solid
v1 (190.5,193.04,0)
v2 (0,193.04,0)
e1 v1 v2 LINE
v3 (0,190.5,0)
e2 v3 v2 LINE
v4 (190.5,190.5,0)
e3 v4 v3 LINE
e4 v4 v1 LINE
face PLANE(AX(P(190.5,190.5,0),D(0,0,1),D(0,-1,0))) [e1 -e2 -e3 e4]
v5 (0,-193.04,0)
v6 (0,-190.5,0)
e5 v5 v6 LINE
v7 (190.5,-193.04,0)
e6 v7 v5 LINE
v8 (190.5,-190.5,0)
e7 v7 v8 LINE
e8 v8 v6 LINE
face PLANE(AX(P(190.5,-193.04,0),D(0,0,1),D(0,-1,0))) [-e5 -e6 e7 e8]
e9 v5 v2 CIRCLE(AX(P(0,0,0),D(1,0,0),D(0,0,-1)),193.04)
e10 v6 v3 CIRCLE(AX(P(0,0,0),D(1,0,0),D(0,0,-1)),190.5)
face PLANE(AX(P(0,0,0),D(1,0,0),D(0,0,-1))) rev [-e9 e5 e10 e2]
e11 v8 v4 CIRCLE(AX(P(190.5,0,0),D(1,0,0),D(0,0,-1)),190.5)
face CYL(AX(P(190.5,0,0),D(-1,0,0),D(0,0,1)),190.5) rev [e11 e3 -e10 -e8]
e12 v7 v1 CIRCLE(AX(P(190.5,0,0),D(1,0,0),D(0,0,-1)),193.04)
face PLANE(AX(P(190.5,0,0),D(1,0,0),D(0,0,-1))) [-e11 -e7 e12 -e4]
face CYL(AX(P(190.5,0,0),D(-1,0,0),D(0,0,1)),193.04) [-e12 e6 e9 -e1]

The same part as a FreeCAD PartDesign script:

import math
import FreeCAD as App
import Part
import Sketcher

V = App.Vector
Q = App.Units.Quantity

doc = App.newDocument("Part")
body = doc.addObject("PartDesign::Body", "Body")

sketch1 = body.newObject("Sketcher::SketchObject", "Sketch")
sketch1.AttachmentSupport = (doc.getObject("YZ_Plane"), [""])
sketch1.MapMode = "FlatFace"
sketch1.addGeometry(Part.ArcOfCircle(Part.Circle(V(0, 0, 0), V(0, 0, 1), 190.5), math.radians(180), math.radians(360)), False)
sketch1.addGeometry(Part.LineSegment(V(-190.5, 0, 0), V(-193, 0, 0)), False)
sketch1.addGeometry(Part.ArcOfCircle(Part.Circle(V(0, 0, 0), V(0, 0, 1), 193), math.radians(180), math.radians(360)), False)
sketch1.addGeometry(Part.LineSegment(V(193, 0, 0), V(190.5, 0, 0)), False)
sketch1.addConstraint(Sketcher.Constraint("Coincident", 0, 1, 1, 1))
sketch1.addConstraint(Sketcher.Constraint("Coincident", 1, 2, 2, 1))
sketch1.addConstraint(Sketcher.Constraint("Coincident", 2, 2, 3, 1))
sketch1.addConstraint(Sketcher.Constraint("Coincident", 3, 2, 0, 2))
sketch1.addConstraint(Sketcher.Constraint("Horizontal", 1))
sketch1.addConstraint(Sketcher.Constraint("Horizontal", 3))
sketch1.addConstraint(Sketcher.Constraint("Coincident", 0, 3, -1, 1))
sketch1.addConstraint(Sketcher.Constraint("Coincident", 2, 3, -1, 1))
sketch1.addConstraint(Sketcher.Constraint("PointOnObject", 0, 1, -1))
sketch1.addConstraint(Sketcher.Constraint("PointOnObject", 2, 2, -1))
sketch1.addConstraint(Sketcher.Constraint("Radius", 0, Q("7.5 in")))
sketch1.addConstraint(Sketcher.Constraint("Radius", 2, Q("7.6 in")))
pad1 = body.newObject("PartDesign::Pad", "Pad")
pad1.Profile = sketch1
pad1.Length = Q("7.5 in")

doc.recompute()
